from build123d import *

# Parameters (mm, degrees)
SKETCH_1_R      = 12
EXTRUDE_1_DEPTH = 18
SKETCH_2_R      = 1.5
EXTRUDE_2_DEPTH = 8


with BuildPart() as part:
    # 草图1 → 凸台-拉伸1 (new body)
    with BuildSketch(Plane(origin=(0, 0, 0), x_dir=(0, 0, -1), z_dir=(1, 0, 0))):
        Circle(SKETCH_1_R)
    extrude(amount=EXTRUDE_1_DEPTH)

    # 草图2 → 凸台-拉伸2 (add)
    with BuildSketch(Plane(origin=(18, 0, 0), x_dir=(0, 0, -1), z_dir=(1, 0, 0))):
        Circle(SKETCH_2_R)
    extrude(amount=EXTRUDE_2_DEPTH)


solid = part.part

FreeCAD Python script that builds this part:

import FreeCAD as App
import Part
import Sketcher

doc = App.newDocument("Part")
body = doc.addObject("PartDesign::Body", "Body")

# Sketch on YZ plane
sketch1 = doc.addObject("Sketcher::SketchObject", "Sketch")
body.addObject(sketch1)
sketch1.AttachmentSupport = (doc.YZ_Plane, [""])
sketch1.MapMode = "FlatFace"
sketch1.addGeometry(Part.Circle(App.Vector(0, 0, 0), App.Vector(0, 0, 1), 12), False)
sketch1.addConstraint(Sketcher.Constraint("Coincident", 0, 3, -1, 1))
sketch1.addConstraint(Sketcher.Constraint("Diameter", 0, 24.0))
pad1 = doc.addObject("PartDesign::Pad", "Pad")
body.addObject(pad1)
pad1.Profile = sketch1
pad1.Length = 18

# Sketch on YZ plane
sketch2 = doc.addObject("Sketcher::SketchObject", "Sketch001")
body.addObject(sketch2)
sketch2.AttachmentSupport = (doc.YZ_Plane, [""])
sketch2.MapMode = "FlatFace"
sketch2.AttachmentOffset = App.Placement(App.Vector(0, 0, 18), App.Rotation())
sketch2.addGeometry(Part.Circle(App.Vector(0, 0, 0), App.Vector(0, 0, 1), 1.5), False)
sketch2.addConstraint(Sketcher.Constraint("Coincident", 0, 3, -1, 1))
sketch2.addConstraint(Sketcher.Constraint("Diameter", 0, 3.0))
pad2 = doc.addObject("PartDesign::Pad", "Pad001")
body.addObject(pad2)
pad2.Profile = sketch2
pad2.Length = 8

doc.recompute()
